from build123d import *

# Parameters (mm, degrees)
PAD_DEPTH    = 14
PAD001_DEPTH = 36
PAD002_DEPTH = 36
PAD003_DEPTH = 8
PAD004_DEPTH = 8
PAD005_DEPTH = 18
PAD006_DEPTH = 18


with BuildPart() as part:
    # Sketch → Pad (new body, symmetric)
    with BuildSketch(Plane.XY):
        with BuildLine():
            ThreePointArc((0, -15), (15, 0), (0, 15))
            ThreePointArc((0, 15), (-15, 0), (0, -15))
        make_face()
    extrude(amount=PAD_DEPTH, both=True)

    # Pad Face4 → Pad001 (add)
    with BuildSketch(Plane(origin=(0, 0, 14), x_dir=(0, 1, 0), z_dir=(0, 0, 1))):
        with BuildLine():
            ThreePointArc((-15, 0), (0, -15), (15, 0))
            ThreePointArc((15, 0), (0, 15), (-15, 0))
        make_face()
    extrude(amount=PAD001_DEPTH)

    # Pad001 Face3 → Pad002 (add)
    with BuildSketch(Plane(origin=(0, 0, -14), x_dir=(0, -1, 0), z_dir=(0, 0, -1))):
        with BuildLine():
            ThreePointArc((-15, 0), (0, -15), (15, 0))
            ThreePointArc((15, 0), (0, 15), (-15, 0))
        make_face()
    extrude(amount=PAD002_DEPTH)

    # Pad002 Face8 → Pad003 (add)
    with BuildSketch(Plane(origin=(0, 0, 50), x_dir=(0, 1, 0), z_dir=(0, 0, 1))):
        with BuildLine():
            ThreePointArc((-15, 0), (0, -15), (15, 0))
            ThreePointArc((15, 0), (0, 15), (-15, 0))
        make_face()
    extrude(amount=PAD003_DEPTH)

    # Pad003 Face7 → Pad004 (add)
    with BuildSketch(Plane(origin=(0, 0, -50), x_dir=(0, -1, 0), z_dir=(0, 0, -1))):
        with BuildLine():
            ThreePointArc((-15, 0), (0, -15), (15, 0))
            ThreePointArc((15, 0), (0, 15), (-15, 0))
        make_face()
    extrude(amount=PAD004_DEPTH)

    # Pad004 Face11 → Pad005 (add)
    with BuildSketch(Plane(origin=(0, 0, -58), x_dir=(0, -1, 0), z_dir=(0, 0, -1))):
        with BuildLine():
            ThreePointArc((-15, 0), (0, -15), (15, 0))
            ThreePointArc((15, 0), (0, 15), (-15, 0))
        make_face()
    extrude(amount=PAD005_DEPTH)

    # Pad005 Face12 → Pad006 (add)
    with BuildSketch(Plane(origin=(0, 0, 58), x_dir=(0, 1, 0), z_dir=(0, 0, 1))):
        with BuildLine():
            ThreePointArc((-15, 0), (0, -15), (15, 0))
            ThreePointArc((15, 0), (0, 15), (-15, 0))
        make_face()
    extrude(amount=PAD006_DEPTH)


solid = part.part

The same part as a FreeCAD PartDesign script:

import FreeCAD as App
import Part
import Sketcher

doc = App.newDocument("Part")
params = doc.addObject("Spreadsheet::Sheet", "Params")
for row, (alias, value) in enumerate([
    ("sketch1_diameter", "30 mm"),
    ("pad1_length", "28 mm"),
    ("sketch2_diameter", "30 mm"),
    ("pad2_length", "36 mm"),
    ("sketch3_diameter", "30 mm"),
    ("pad3_length", "36 mm"),
    ("sketch4_diameter", "30 mm"),
    ("pad4_length", "8 mm"),
    ("sketch5_diameter", "30 mm"),
    ("pad5_length", "8 mm"),
    ("sketch6_diameter", "30 mm"),
    ("pad6_length", "18 mm"),
    ("sketch7_diameter", "30 mm"),
    ("pad7_length", "18 mm"),
], start=1):
    params.set(f"A{row}", alias)
    params.set(f"B{row}", "=" + value)
    params.setAlias(f"B{row}", alias)

body = doc.addObject("PartDesign::Body", "Body")

# Sketch on XY plane
sketch1 = doc.addObject("Sketcher::SketchObject", "Sketch")
body.addObject(sketch1)
sketch1.AttachmentSupport = (doc.XY_Plane, [""])
sketch1.MapMode = "FlatFace"
sketch1.addGeometry(Part.Circle(App.Vector(0, 0, 0), App.Vector(0, 0, 1), 15), False)
sketch1.addConstraint([
    Sketcher.Constraint("Coincident", 0, 3, -1, 1),
    Sketcher.Constraint("Diameter", 0, 30.0),
])
sketch1.setExpression("Constraints[1]", "Params.sketch1_diameter")
pad1 = doc.addObject("PartDesign::Pad", "Pad")
body.addObject(pad1)
pad1.Profile = sketch1
pad1.setExpression("Length", "Params.pad1_length")
pad1.Midplane = True

# Sketch on XY plane
sketch2 = doc.addObject("Sketcher::SketchObject", "Sketch001")
body.addObject(sketch2)
sketch2.AttachmentSupport = (doc.XY_Plane, [""])
sketch2.MapMode = "FlatFace"
sketch2.AttachmentOffset = App.Placement(App.Vector(0, 0, 14), App.Rotation())
sketch2.addGeometry(Part.Circle(App.Vector(0, 0, 0), App.Vector(0, 0, 1), 15), False)
sketch2.addConstraint([
    Sketcher.Constraint("Coincident", 0, 3, -1, 1),
    Sketcher.Constraint("Diameter", 0, 30.0),
])
sketch2.setExpression("Constraints[1]", "Params.sketch2_diameter")
pad2 = doc.addObject("PartDesign::Pad", "Pad001")
body.addObject(pad2)
pad2.Profile = sketch2
pad2.setExpression("Length", "Params.pad2_length")

# Sketch on XY plane
sketch3 = doc.addObject("Sketcher::SketchObject", "Sketch002")
body.addObject(sketch3)
sketch3.AttachmentSupport = (doc.XY_Plane, [""])
sketch3.MapMode = "FlatFace"
sketch3.AttachmentOffset = App.Placement(App.Vector(0, 0, -14), App.Rotation())
sketch3.addGeometry(Part.Circle(App.Vector(0, 0, 0), App.Vector(0, 0, 1), 15), False)
sketch3.addConstraint([
    Sketcher.Constraint("Coincident", 0, 3, -1, 1),
    Sketcher.Constraint("Diameter", 0, 30.0),
])
sketch3.setExpression("Constraints[1]", "Params.sketch3_diameter")
pad3 = doc.addObject("PartDesign::Pad", "Pad002")
body.addObject(pad3)
pad3.Profile = sketch3
pad3.setExpression("Length", "Params.pad3_length")
pad3.Reversed = True

# Sketch on XY plane
sketch4 = doc.addObject("Sketcher::SketchObject", "Sketch003")
body.addObject(sketch4)
sketch4.AttachmentSupport = (doc.XY_Plane, [""])
sketch4.MapMode = "FlatFace"
sketch4.AttachmentOffset = App.Placement(App.Vector(0, 0, 50), App.Rotation())
sketch4.addGeometry(Part.Circle(App.Vector(0, 0, 0), App.Vector(0, 0, 1), 15), False)
sketch4.addConstraint([
    Sketcher.Constraint("Coincident", 0, 3, -1, 1),
    Sketcher.Constraint("Diameter", 0, 30.0),
])
sketch4.setExpression("Constraints[1]", "Params.sketch4_diameter")
pad4 = doc.addObject("PartDesign::Pad", "Pad003")
body.addObject(pad4)
pad4.Profile = sketch4
pad4.setExpression("Length", "Params.pad4_length")

# Sketch on XY plane
sketch5 = doc.addObject("Sketcher::SketchObject", "Sketch004")
body.addObject(sketch5)
sketch5.AttachmentSupport = (doc.XY_Plane, [""])
sketch5.MapMode = "FlatFace"
sketch5.AttachmentOffset = App.Placement(App.Vector(0, 0, -50), App.Rotation())
sketch5.addGeometry(Part.Circle(App.Vector(0, 0, 0), App.Vector(0, 0, 1), 15), False)
sketch5.addConstraint([
    Sketcher.Constraint("Coincident", 0, 3, -1, 1),
    Sketcher.Constraint("Diameter", 0, 30.0),
])
sketch5.setExpression("Constraints[1]", "Params.sketch5_diameter")
pad5 = doc.addObject("PartDesign::Pad", "Pad004")
body.addObject(pad5)
pad5.Profile = sketch5
pad5.setExpression("Length", "Params.pad5_length")
pad5.Reversed = True

# Sketch on XY plane
sketch6 = doc.addObject("Sketcher::SketchObject", "Sketch005")
body.addObject(sketch6)
sketch6.AttachmentSupport = (doc.XY_Plane, [""])
sketch6.MapMode = "FlatFace"
sketch6.AttachmentOffset = App.Placement(App.Vector(0, 0, -58), App.Rotation())
sketch6.addGeometry(Part.Circle(App.Vector(0, 0, 0), App.Vector(0, 0, 1), 15), False)
sketch6.addConstraint([
    Sketcher.Constraint("Coincident", 0, 3, -1, 1),
    Sketcher.Constraint("Diameter", 0, 30.0),
])
sketch6.setExpression("Constraints[1]", "Params.sketch6_diameter")
pad6 = doc.addObject("PartDesign::Pad", "Pad005")
body.addObject(pad6)
pad6.Profile = sketch6
pad6.setExpression("Length", "Params.pad6_length")
pad6.Reversed = True

# Sketch on XY plane
sketch7 = doc.addObject("Sketcher::SketchObject", "Sketch006")
body.addObject(sketch7)
sketch7.AttachmentSupport = (doc.XY_Plane, [""])
sketch7.MapMode = "FlatFace"
sketch7.AttachmentOffset = App.Placement(App.Vector(0, 0, 58), App.Rotation())
sketch7.addGeometry(Part.Circle(App.Vector(0, 0, 0), App.Vector(0, 0, 1), 15), False)
sketch7.addConstraint([
    Sketcher.Constraint("Coincident", 0, 3, -1, 1),
    Sketcher.Constraint("Diameter", 0, 30.0),
])
sketch7.setExpression("Constraints[1]", "Params.sketch7_diameter")
pad7 = doc.addObject("PartDesign::Pad", "Pad006")
body.addObject(pad7)
pad7.Profile = sketch7
pad7.setExpression("Length", "Params.pad7_length")

doc.recompute()
